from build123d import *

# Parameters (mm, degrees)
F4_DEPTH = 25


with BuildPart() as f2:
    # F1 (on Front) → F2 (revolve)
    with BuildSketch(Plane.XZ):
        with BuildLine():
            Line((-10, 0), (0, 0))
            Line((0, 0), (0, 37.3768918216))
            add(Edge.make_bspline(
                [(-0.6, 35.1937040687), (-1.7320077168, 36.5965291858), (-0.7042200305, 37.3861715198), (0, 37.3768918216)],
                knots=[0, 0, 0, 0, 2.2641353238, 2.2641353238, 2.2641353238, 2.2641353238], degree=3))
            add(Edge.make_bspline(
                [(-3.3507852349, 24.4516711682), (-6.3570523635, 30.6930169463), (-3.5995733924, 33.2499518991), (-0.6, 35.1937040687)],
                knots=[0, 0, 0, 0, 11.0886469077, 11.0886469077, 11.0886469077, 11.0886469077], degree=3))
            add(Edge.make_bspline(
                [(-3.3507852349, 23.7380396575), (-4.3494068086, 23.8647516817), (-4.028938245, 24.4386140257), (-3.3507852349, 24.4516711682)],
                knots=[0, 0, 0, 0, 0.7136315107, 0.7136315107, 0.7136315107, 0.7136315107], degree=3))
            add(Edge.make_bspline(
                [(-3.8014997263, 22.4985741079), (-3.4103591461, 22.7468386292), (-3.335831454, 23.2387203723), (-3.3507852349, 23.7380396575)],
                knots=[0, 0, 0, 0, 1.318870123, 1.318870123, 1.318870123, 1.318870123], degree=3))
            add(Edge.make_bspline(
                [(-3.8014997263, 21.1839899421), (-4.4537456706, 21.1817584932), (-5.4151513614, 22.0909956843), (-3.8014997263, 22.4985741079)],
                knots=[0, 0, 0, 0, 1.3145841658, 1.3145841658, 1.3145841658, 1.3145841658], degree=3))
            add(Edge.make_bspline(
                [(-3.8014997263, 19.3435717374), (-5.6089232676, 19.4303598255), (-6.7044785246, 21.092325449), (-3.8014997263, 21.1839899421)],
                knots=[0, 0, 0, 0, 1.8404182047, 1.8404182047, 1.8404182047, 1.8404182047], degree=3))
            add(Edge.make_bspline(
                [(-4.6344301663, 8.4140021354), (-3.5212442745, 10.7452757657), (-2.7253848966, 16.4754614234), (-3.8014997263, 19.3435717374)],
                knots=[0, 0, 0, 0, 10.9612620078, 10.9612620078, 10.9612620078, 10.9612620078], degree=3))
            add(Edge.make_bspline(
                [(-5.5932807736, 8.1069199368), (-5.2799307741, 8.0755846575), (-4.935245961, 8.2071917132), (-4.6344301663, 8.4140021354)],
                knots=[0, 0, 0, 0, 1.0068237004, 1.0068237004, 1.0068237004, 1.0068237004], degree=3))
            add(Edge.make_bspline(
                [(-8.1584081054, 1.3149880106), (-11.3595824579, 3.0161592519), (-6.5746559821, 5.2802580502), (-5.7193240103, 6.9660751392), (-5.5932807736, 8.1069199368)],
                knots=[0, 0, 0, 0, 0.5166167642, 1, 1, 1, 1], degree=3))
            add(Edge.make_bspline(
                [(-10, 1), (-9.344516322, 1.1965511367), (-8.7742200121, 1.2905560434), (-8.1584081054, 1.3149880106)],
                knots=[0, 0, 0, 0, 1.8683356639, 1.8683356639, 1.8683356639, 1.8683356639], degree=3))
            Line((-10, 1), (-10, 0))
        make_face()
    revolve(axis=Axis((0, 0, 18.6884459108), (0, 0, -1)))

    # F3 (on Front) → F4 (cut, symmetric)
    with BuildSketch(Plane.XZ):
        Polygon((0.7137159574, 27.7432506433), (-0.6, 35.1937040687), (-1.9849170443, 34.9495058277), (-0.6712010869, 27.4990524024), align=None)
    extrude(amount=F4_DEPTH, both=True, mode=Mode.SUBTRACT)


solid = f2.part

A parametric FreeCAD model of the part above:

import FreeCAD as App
import Part
import Sketcher
Q = App.Units.Quantity

doc = App.newDocument("Part")
params = doc.addObject("Spreadsheet::Sheet", "Params")
for row, (alias, value) in enumerate([
    ("revolution_angle", "360 deg"),
    ("pocket1_length", "50 mm"),
], start=1):
    params.set(f"A{row}", alias)
    params.set(f"B{row}", "=" + value)
    params.setAlias(f"B{row}", alias)

body = doc.addObject("PartDesign::Body", "Body")

sketch1 = body.newObject("Sketcher::SketchObject", "Sketch")
sketch1.AttachmentSupport = (doc.getObject("XZ_Plane"), [""])
sketch1.MapMode = "FlatFace"
sketch1.addGeometry(Part.LineSegment(App.Vector(-10, 0, 0), App.Vector(0, 0, 0)), False)
sketch1.addGeometry(Part.LineSegment(App.Vector(0, 0, 0), App.Vector(0, 37.376892, 0)), False)
sketch1.addGeometry(Part.BSplineCurve([App.Vector(-0.6, 35.193704, 0), App.Vector(-1.732008, 36.596529, 0), App.Vector(-0.70422, 37.386172, 0), App.Vector(0, 37.376892, 0)], [4, 4], [0, 2.264135324], False, 3, [1, 1, 1, 1], False), False)
sketch1.addGeometry(Part.BSplineCurve([App.Vector(-3.350785, 24.451671, 0), App.Vector(-6.357052, 30.693017, 0), App.Vector(-3.599573, 33.249952, 0), App.Vector(-0.6, 35.193704, 0)], [4, 4], [0, 11.088646908], False, 3, [1, 1, 1, 1], False), False)
sketch1.addGeometry(Part.BSplineCurve([App.Vector(-3.350785, 23.73804, 0), App.Vector(-4.349407, 23.864752, 0), App.Vector(-4.028938, 24.438614, 0), App.Vector(-3.350785, 24.451671, 0)], [4, 4], [0, 0.713631511], False, 3, [1, 1, 1, 1], False), False)
sketch1.addGeometry(Part.BSplineCurve([App.Vector(-3.8015, 22.498574, 0), App.Vector(-3.410359, 22.746839, 0), App.Vector(-3.335831, 23.23872, 0), App.Vector(-3.350785, 23.73804, 0)], [4, 4], [0, 1.318870123], False, 3, [1, 1, 1, 1], False), False)
sketch1.addGeometry(Part.BSplineCurve([App.Vector(-3.8015, 21.18399, 0), App.Vector(-4.453746, 21.181758, 0), App.Vector(-5.415151, 22.090996, 0), App.Vector(-3.8015, 22.498574, 0)], [4, 4], [0, 1.314584166], False, 3, [1, 1, 1, 1], False), False)
sketch1.addGeometry(Part.BSplineCurve([App.Vector(-3.8015, 19.343572, 0), App.Vector(-5.608923, 19.43036, 0), App.Vector(-6.704479, 21.092325, 0), App.Vector(-3.8015, 21.18399, 0)], [4, 4], [0, 1.840418205], False, 3, [1, 1, 1, 1], False), False)
sketch1.addGeometry(Part.BSplineCurve([App.Vector(-4.63443, 8.414002, 0), App.Vector(-3.521244, 10.745276, 0), App.Vector(-2.725385, 16.475461, 0), App.Vector(-3.8015, 19.343572, 0)], [4, 4], [0, 10.961262008], False, 3, [1, 1, 1, 1], False), False)
sketch1.addGeometry(Part.BSplineCurve([App.Vector(-5.593281, 8.10692, 0), App.Vector(-5.279931, 8.075585, 0), App.Vector(-4.935246, 8.207192, 0), App.Vector(-4.63443, 8.414002, 0)], [4, 4], [0, 1.0068237], False, 3, [1, 1, 1, 1], False), False)
sketch1.addGeometry(Part.BSplineCurve([App.Vector(-8.158408, 1.314988, 0), App.Vector(-11.359582, 3.016159, 0), App.Vector(-6.574656, 5.280258, 0), App.Vector(-5.719324, 6.966075, 0), App.Vector(-5.593281, 8.10692, 0)], [4, 1, 4], [0, 0.516616764, 1], False, 3, [1, 1, 1, 1, 1], False), False)
sketch1.addGeometry(Part.BSplineCurve([App.Vector(-10, 1, 0), App.Vector(-9.344516, 1.196551, 0), App.Vector(-8.77422, 1.290556, 0), App.Vector(-8.158408, 1.314988, 0)], [4, 4], [0, 1.868335664], False, 3, [1, 1, 1, 1], False), False)
sketch1.addGeometry(Part.LineSegment(App.Vector(-10, 1, 0), App.Vector(-10, 0, 0)), False)
sketch1.addConstraint(Sketcher.Constraint("Block", 2))
sketch1.addConstraint(Sketcher.Constraint("Block", 3))
sketch1.addConstraint(Sketcher.Constraint("Block", 4))
sketch1.addConstraint(Sketcher.Constraint("Block", 5))
sketch1.addConstraint(Sketcher.Constraint("Block", 6))
sketch1.addConstraint(Sketcher.Constraint("Block", 7))
sketch1.addConstraint(Sketcher.Constraint("Block", 8))
sketch1.addConstraint(Sketcher.Constraint("Block", 9))
sketch1.addConstraint(Sketcher.Constraint("Block", 10))
sketch1.addConstraint(Sketcher.Constraint("Block", 11))
sketch1.addConstraint(Sketcher.Constraint("Coincident", 0, 2, 1, 1))
sketch1.addConstraint(Sketcher.Constraint("Coincident", 1, 2, 2, 2))
sketch1.addConstraint(Sketcher.Constraint("Coincident", 11, 1, 12, 1))
sketch1.addConstraint(Sketcher.Constraint("Coincident", 12, 2, 0, 1))
sketch1.addConstraint(Sketcher.Constraint("Horizontal", 0))
sketch1.addConstraint(Sketcher.Constraint("Vertical", 1))
sketch1.addConstraint(Sketcher.Constraint("Vertical", 12))
sketch1.addConstraint(Sketcher.Constraint("PointOnObject", 12, 2, -1))
revolution = body.newObject("PartDesign::Revolution", "Revolution")
revolution.Profile = sketch1
revolution.ReferenceAxis = (sketch1, ["V_Axis"])
revolution.setExpression("Angle", "Params.revolution_angle")

sketch2 = body.newObject("Sketcher::SketchObject", "Sketch001")
sketch2.AttachmentSupport = (doc.getObject("XZ_Plane"), [""])
sketch2.MapMode = "FlatFace"
sketch2.addGeometry(Part.LineSegment(App.Vector(0.7, 27.7, 0), App.Vector(-0.6, 35.2, 0)), False)
sketch2.addGeometry(Part.LineSegment(App.Vector(-0.6, 35.2, 0), App.Vector(-2, 34.9, 0)), False)
sketch2.addGeometry(Part.LineSegment(App.Vector(-2, 34.9, 0), App.Vector(-0.7, 27.5, 0)), False)
sketch2.addGeometry(Part.LineSegment(App.Vector(-0.7, 27.5, 0), App.Vector(0.7, 27.7, 0)), False)
sketch2.addConstraint(Sketcher.Constraint("Coincident", 0, 2, 1, 1))
sketch2.addConstraint(Sketcher.Constraint("Coincident", 1, 2, 2, 1))
sketch2.addConstraint(Sketcher.Constraint("Coincident", 2, 2, 3, 1))
sketch2.addConstraint(Sketcher.Constraint("Coincident", 3, 2, 0, 1))
sketch2.addConstraint(Sketcher.Constraint("Perpendicular", 0, 1))
sketch2.addConstraint(Sketcher.Constraint("Perpendicular", 1, 2))
sketch2.addConstraint(Sketcher.Constraint("Perpendicular", 2, 3))
sketch2.addConstraint(Sketcher.Constraint("Angle", 0, Q("100 deg")))
sketch2.addConstraint(Sketcher.Constraint("DistanceX", 0, 2, -1, 1, Q("0.6 mm")))
sketch2.addConstraint(Sketcher.Constraint("DistanceX", 2, 2, -1, 1, Q("0.671201 mm")))
sketch2.addConstraint(Sketcher.Constraint("DistanceY", 1, 2, 0, 2, Q("0.244198 mm")))
sketch2.addConstraint(Sketcher.Constraint("DistanceY", -1, 1, 3, 2, Q("27.743251 mm")))
pocket1 = body.newObject("PartDesign::Pocket", "Pocket")
pocket1.Profile = sketch2
pocket1.setExpression("Length", "Params.pocket1_length")
pocket1.Midplane = True

doc.recompute()
